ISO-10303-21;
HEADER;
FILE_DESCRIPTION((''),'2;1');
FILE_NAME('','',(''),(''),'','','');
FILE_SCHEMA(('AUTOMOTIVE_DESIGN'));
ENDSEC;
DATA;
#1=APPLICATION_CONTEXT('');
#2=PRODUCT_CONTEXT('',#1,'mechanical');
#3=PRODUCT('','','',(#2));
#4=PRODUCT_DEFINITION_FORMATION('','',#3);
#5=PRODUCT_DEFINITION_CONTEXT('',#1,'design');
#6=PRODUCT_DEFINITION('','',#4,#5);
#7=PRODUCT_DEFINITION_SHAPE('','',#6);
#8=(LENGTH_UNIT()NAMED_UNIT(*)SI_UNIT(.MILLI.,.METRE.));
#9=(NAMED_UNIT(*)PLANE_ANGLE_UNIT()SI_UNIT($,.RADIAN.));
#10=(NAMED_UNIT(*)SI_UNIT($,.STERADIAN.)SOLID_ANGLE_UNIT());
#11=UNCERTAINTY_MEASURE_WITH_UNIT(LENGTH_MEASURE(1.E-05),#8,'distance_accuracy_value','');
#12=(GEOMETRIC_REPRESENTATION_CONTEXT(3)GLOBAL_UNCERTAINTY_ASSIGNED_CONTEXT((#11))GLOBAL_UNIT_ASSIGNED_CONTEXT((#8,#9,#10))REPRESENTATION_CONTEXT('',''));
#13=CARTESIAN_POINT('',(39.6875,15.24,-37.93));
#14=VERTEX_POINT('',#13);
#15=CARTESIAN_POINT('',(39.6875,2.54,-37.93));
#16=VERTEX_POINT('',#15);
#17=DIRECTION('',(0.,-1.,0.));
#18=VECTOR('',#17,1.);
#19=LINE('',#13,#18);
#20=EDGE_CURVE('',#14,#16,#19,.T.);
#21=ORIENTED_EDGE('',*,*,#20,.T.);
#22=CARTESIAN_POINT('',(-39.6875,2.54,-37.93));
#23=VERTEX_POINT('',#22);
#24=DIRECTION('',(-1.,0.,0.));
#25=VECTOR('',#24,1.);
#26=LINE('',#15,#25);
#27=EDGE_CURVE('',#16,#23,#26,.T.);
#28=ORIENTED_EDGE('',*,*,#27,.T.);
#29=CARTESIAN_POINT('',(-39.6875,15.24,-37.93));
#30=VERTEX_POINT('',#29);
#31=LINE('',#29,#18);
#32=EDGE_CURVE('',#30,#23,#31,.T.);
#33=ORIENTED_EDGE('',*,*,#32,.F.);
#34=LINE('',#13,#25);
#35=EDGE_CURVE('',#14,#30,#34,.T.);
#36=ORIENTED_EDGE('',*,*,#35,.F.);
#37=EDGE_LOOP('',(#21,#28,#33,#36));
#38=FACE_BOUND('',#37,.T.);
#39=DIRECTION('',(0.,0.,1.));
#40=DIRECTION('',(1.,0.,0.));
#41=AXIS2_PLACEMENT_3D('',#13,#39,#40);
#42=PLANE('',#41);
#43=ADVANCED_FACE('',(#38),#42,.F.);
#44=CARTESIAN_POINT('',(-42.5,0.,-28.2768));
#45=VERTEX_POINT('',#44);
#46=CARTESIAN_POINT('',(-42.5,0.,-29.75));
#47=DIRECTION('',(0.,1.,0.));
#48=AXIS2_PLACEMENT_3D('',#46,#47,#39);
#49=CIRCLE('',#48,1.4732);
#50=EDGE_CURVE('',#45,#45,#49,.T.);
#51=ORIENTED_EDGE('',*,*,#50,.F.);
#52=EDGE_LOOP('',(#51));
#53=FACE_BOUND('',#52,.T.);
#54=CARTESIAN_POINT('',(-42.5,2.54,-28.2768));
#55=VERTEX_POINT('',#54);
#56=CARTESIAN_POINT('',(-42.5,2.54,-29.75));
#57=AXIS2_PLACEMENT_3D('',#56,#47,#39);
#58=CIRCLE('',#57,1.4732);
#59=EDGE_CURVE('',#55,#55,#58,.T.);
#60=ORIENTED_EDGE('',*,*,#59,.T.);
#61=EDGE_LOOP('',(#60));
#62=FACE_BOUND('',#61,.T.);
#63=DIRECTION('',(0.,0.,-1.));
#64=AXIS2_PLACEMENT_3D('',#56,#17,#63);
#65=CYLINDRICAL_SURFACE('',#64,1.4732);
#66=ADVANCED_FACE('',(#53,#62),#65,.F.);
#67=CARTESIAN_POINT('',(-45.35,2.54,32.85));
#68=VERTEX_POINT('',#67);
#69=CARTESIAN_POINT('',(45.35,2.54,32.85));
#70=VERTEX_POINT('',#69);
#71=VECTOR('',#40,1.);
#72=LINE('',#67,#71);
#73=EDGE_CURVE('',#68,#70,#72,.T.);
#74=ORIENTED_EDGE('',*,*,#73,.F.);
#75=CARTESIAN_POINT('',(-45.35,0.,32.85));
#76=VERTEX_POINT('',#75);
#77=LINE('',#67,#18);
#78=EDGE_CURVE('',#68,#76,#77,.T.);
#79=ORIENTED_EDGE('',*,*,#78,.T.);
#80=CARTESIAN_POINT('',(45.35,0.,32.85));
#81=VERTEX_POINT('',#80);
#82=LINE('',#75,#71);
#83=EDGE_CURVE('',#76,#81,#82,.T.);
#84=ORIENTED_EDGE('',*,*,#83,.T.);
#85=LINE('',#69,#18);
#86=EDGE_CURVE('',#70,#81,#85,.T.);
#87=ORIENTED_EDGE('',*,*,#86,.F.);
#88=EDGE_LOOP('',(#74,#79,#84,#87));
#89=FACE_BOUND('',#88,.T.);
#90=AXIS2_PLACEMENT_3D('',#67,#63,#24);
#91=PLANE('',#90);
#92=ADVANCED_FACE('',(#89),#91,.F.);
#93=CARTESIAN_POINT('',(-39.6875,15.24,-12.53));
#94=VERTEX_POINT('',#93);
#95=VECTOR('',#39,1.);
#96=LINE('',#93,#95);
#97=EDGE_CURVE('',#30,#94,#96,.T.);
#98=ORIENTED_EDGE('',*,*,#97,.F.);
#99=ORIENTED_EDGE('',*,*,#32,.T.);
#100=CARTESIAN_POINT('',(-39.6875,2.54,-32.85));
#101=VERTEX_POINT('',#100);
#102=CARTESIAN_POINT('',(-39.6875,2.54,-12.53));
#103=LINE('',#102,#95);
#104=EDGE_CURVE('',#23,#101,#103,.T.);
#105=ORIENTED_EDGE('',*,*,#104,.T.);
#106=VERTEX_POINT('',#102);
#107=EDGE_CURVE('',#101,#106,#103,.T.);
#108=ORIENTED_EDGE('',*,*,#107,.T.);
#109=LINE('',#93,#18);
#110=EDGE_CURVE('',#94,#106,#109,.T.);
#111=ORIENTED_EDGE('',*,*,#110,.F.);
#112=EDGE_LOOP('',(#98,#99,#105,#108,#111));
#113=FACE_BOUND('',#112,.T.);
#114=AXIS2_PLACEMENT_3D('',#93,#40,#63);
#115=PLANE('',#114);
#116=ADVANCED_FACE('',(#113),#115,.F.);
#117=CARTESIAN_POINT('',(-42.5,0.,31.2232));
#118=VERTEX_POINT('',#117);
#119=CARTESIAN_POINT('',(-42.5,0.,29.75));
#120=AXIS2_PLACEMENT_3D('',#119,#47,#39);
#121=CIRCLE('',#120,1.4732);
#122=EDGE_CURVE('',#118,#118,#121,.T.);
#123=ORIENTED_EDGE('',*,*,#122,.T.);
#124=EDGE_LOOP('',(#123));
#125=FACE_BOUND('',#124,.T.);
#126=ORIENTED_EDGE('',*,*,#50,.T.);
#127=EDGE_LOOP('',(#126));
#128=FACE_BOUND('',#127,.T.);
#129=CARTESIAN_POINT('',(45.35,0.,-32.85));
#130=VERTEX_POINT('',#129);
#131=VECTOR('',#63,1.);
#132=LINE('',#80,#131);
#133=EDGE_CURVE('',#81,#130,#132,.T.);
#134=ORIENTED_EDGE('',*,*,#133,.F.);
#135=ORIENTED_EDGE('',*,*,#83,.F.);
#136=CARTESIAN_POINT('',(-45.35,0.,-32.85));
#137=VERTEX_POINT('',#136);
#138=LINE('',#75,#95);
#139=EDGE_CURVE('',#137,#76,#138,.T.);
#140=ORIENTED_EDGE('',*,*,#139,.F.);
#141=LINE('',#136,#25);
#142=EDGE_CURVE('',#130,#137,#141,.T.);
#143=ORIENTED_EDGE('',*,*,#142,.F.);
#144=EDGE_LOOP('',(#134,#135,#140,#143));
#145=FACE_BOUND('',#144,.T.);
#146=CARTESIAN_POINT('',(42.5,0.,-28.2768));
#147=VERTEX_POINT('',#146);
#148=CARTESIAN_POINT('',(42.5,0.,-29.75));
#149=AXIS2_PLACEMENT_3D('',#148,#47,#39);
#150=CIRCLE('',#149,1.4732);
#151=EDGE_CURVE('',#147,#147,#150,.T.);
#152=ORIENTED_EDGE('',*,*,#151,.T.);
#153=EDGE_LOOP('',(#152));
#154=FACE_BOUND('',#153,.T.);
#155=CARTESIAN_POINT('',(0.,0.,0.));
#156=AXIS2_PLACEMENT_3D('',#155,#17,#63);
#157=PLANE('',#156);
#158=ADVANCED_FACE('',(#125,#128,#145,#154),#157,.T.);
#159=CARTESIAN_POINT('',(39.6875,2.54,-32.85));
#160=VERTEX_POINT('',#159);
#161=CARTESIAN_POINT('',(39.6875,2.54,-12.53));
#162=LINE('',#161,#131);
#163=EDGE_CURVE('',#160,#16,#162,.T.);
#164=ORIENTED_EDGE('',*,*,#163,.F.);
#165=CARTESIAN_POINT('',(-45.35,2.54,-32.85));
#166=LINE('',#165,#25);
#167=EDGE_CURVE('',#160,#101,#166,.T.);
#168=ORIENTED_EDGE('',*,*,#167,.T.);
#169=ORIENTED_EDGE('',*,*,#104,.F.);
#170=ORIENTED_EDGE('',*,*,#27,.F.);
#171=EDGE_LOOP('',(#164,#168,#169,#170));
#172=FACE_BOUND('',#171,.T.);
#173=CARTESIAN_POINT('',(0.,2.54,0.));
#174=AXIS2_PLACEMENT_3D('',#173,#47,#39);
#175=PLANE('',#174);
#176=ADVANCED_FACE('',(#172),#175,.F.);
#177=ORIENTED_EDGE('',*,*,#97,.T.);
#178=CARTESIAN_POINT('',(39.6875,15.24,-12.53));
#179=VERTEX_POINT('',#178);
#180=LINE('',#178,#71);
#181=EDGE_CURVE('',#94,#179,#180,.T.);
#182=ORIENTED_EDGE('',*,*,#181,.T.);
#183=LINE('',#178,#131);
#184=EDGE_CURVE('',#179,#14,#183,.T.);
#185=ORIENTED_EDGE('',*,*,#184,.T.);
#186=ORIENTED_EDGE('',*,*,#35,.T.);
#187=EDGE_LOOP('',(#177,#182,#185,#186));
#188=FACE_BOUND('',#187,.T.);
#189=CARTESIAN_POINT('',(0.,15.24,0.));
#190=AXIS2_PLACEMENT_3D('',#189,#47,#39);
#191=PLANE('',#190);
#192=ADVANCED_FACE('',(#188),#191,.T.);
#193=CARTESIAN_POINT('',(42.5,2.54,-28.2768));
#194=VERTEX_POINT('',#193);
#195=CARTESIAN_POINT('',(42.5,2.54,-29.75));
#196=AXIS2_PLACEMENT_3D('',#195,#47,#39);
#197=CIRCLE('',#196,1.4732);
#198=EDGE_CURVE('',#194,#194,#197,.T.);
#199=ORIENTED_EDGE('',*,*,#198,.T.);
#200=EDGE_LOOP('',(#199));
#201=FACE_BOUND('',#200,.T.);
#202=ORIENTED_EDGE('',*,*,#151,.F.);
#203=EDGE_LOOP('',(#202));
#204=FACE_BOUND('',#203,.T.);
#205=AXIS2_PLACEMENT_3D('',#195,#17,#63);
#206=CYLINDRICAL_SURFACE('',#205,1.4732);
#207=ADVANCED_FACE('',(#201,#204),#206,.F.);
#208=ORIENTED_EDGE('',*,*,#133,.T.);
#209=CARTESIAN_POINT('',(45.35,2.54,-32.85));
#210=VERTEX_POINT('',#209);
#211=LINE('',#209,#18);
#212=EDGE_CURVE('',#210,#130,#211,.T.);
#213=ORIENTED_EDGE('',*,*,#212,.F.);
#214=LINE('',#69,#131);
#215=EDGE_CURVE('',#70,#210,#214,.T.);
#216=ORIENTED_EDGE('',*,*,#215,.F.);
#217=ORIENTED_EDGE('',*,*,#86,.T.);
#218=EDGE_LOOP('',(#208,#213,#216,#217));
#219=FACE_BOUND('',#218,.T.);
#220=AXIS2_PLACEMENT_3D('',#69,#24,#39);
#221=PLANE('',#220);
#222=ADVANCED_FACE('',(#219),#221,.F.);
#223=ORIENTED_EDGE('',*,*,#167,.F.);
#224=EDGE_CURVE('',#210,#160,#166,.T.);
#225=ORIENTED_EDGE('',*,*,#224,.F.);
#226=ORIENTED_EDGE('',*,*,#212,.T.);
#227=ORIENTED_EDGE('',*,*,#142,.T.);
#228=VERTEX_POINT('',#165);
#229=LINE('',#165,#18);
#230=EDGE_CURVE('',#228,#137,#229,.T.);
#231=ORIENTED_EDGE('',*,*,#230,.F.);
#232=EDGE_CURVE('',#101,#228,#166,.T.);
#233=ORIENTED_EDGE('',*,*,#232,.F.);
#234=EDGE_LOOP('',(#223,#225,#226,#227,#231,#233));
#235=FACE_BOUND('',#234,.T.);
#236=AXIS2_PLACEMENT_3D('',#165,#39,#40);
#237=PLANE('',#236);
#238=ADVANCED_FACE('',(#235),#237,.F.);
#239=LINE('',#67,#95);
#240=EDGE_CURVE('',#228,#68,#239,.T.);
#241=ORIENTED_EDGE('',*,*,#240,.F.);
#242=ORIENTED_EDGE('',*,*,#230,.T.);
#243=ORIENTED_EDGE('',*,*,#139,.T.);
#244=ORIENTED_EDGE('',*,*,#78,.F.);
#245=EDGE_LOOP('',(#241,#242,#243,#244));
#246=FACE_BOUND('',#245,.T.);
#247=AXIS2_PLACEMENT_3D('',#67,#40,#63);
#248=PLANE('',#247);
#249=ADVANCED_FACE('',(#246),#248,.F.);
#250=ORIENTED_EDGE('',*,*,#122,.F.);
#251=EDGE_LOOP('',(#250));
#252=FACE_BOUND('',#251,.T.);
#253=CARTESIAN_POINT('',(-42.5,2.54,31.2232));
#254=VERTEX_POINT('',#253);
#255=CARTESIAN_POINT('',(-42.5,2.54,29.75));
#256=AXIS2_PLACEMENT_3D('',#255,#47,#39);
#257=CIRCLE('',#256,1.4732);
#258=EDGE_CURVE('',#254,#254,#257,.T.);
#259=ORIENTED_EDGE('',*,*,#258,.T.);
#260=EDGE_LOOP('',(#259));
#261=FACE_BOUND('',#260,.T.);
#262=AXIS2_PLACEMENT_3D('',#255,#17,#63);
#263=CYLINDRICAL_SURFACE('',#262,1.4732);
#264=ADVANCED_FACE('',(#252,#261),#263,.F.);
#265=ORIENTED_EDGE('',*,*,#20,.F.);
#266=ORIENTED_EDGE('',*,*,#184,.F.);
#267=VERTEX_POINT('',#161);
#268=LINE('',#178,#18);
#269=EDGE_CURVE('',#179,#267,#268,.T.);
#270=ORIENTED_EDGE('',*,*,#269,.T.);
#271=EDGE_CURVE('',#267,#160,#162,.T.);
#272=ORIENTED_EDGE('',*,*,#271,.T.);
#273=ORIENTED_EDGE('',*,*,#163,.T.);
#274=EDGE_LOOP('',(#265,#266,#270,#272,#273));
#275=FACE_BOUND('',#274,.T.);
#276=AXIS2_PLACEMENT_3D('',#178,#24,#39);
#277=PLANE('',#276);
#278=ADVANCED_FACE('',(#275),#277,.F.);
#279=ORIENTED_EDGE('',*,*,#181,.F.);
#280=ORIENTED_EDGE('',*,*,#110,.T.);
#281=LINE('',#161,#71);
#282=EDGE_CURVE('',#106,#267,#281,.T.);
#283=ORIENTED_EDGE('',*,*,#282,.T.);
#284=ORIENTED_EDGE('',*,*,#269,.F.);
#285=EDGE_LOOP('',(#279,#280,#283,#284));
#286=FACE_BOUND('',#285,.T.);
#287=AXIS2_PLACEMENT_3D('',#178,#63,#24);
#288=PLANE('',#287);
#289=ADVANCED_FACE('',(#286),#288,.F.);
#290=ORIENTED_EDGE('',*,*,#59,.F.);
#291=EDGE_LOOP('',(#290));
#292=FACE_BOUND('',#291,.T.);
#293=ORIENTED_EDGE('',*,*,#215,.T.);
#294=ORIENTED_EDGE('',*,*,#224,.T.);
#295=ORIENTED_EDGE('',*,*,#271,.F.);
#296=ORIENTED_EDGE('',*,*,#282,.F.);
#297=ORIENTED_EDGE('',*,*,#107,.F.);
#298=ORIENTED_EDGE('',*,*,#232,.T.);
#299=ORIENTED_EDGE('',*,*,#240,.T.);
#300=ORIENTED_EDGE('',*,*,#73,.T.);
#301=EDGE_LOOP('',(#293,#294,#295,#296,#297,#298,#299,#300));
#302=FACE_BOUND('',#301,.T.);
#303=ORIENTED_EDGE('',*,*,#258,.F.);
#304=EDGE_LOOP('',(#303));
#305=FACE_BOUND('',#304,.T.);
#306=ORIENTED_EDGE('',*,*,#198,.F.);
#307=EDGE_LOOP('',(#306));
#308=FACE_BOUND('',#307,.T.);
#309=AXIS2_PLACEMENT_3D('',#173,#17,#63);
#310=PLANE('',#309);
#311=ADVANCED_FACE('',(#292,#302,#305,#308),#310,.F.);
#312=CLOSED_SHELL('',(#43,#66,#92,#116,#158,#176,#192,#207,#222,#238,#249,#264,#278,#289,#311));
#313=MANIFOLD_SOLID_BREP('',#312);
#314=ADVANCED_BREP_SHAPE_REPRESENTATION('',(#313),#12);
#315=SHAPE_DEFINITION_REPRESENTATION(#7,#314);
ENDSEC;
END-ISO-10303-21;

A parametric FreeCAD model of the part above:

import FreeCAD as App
import Part
import Sketcher

V = App.Vector
Q = App.Units.Quantity


def add_polygon(sketch, points):
    """Adds a closed chain of lines whose ends are joined by coincident constraints."""
    first, n = sketch.GeometryCount, len(points)
    for a, b in zip(points, points[1:] + points[:1]):
        sketch.addGeometry(Part.LineSegment(App.Vector(*a, 0), App.Vector(*b, 0)), False)
    for i in range(n):
        sketch.addConstraint(Sketcher.Constraint("Coincident", first + i, 2, first + (i + 1) % n, 1))

doc = App.newDocument("Part")
params = doc.addObject("Spreadsheet::Sheet", "Params")
for row, (alias, value) in enumerate([
    ("sketch1_diameter", "0.116 in"),
    ("pad1_length", "0.1 in"),
    ("sketch2_height", "1 in"),
    ("sketch2_width", "3.125 in"),
    ("pad2_length", "0.5 in"),
], start=1):
    params.set(f"A{row}", alias)
    params.set(f"B{row}", "=" + value)
    params.setAlias(f"B{row}", alias)

body = doc.addObject("PartDesign::Body", "Body")

# Sketch on XZ plane
sketch1 = doc.addObject("Sketcher::SketchObject", "Sketch")
body.addObject(sketch1)
sketch1.AttachmentSupport = (doc.XZ_Plane, [""])
sketch1.MapMode = "FlatFace"
add_polygon(sketch1, [(-45.35, -32.85), (-45.35, 32.85), (45.35, 32.85), (45.35, -32.85)])  # lines 0-3
sketch1.addGeometry(Part.Circle(V(-42.5, 29.75, 0), V(0, 0, 1), 1.4732), False)  # 4
sketch1.addGeometry(Part.Circle(V(-42.5, -29.75, 0), V(0, 0, 1), 1.4732), False)  # 5
sketch1.addGeometry(Part.Circle(V(42.5, -29.75, 0), V(0, 0, 1), 1.4732), False)  # 6
sketch1.addConstraint(Sketcher.Constraint("Vertical", 0))
sketch1.addConstraint(Sketcher.Constraint("Horizontal", 1))
sketch1.addConstraint(Sketcher.Constraint("Vertical", 2))
sketch1.addConstraint(Sketcher.Constraint("Horizontal", 3))
sketch1.addConstraint(Sketcher.Constraint("Equal", 4, 5))
sketch1.addConstraint(Sketcher.Constraint("Equal", 5, 6))
sketch1.addConstraint(Sketcher.Constraint("Symmetric", 4, 3, 6, 3, -1, 1))
sketch1.addConstraint(Sketcher.Constraint("Symmetric", 0, 2, 2, 2, -1, 1))
sketch1.addConstraint(Sketcher.Constraint("Symmetric", 5, 3, 6, 3, -2))
sketch1.addConstraint(Sketcher.Constraint("Diameter", 4, Q("0.116 in")))
sketch1.addConstraint(Sketcher.Constraint("DistanceX", 1, 1, 1, 2, 90.7))
sketch1.addConstraint(Sketcher.Constraint("DistanceY", 0, 1, 0, 2, 65.7))
sketch1.addConstraint(Sketcher.Constraint("DistanceX", 4, 3, -1, 1, 42.5))
sketch1.addConstraint(Sketcher.Constraint("DistanceY", -1, 1, 4, 3, 29.75))
sketch1.setExpression("Constraints[13]", "Params.sketch1_diameter")
pad1 = doc.addObject("PartDesign::Pad", "Pad")
body.addObject(pad1)
pad1.Profile = sketch1
pad1.setExpression("Length", "Params.pad1_length")
pad1.Reversed = True

# Sketch on XZ plane
sketch2 = doc.addObject("Sketcher::SketchObject", "Sketch001")
body.addObject(sketch2)
sketch2.AttachmentSupport = (doc.XZ_Plane, [""])
sketch2.MapMode = "FlatFace"
sketch2.AttachmentOffset = App.Placement(V(0, 0, -0.1 * 25.4), App.Rotation())
add_polygon(sketch2, [(-39.6875, -37.93), (-39.6875, -12.53), (39.6875, -12.53), (39.6875, -37.93)])  # lines 0-3
sketch2.addConstraint(Sketcher.Constraint("Vertical", 0))
sketch2.addConstraint(Sketcher.Constraint("Horizontal", 1))
sketch2.addConstraint(Sketcher.Constraint("Vertical", 2))
sketch2.addConstraint(Sketcher.Constraint("Horizontal", 3))
sketch2.addConstraint(Sketcher.Constraint("DistanceY", 0, 1, 0, 2, Q("1 in")))
sketch2.addConstraint(Sketcher.Constraint("DistanceX", 1, 1, 1, 2, Q("3.125 in")))
sketch2.addConstraint(Sketcher.Constraint("DistanceX", 0, 2, -1, 1, Q("1.5625 in")))
sketch2.addConstraint(Sketcher.Constraint("DistanceY", 0, 2, -1, 1, 12.53))
sketch2.setExpression("Constraints[8]", "Params.sketch2_height")
sketch2.setExpression("Constraints[9]", "Params.sketch2_width")
pad2 = doc.addObject("PartDesign::Pad", "Pad001")
body.addObject(pad2)
pad2.Profile = sketch2
pad2.setExpression("Length", "Params.pad2_length")
pad2.Reversed = True

doc.recompute()
